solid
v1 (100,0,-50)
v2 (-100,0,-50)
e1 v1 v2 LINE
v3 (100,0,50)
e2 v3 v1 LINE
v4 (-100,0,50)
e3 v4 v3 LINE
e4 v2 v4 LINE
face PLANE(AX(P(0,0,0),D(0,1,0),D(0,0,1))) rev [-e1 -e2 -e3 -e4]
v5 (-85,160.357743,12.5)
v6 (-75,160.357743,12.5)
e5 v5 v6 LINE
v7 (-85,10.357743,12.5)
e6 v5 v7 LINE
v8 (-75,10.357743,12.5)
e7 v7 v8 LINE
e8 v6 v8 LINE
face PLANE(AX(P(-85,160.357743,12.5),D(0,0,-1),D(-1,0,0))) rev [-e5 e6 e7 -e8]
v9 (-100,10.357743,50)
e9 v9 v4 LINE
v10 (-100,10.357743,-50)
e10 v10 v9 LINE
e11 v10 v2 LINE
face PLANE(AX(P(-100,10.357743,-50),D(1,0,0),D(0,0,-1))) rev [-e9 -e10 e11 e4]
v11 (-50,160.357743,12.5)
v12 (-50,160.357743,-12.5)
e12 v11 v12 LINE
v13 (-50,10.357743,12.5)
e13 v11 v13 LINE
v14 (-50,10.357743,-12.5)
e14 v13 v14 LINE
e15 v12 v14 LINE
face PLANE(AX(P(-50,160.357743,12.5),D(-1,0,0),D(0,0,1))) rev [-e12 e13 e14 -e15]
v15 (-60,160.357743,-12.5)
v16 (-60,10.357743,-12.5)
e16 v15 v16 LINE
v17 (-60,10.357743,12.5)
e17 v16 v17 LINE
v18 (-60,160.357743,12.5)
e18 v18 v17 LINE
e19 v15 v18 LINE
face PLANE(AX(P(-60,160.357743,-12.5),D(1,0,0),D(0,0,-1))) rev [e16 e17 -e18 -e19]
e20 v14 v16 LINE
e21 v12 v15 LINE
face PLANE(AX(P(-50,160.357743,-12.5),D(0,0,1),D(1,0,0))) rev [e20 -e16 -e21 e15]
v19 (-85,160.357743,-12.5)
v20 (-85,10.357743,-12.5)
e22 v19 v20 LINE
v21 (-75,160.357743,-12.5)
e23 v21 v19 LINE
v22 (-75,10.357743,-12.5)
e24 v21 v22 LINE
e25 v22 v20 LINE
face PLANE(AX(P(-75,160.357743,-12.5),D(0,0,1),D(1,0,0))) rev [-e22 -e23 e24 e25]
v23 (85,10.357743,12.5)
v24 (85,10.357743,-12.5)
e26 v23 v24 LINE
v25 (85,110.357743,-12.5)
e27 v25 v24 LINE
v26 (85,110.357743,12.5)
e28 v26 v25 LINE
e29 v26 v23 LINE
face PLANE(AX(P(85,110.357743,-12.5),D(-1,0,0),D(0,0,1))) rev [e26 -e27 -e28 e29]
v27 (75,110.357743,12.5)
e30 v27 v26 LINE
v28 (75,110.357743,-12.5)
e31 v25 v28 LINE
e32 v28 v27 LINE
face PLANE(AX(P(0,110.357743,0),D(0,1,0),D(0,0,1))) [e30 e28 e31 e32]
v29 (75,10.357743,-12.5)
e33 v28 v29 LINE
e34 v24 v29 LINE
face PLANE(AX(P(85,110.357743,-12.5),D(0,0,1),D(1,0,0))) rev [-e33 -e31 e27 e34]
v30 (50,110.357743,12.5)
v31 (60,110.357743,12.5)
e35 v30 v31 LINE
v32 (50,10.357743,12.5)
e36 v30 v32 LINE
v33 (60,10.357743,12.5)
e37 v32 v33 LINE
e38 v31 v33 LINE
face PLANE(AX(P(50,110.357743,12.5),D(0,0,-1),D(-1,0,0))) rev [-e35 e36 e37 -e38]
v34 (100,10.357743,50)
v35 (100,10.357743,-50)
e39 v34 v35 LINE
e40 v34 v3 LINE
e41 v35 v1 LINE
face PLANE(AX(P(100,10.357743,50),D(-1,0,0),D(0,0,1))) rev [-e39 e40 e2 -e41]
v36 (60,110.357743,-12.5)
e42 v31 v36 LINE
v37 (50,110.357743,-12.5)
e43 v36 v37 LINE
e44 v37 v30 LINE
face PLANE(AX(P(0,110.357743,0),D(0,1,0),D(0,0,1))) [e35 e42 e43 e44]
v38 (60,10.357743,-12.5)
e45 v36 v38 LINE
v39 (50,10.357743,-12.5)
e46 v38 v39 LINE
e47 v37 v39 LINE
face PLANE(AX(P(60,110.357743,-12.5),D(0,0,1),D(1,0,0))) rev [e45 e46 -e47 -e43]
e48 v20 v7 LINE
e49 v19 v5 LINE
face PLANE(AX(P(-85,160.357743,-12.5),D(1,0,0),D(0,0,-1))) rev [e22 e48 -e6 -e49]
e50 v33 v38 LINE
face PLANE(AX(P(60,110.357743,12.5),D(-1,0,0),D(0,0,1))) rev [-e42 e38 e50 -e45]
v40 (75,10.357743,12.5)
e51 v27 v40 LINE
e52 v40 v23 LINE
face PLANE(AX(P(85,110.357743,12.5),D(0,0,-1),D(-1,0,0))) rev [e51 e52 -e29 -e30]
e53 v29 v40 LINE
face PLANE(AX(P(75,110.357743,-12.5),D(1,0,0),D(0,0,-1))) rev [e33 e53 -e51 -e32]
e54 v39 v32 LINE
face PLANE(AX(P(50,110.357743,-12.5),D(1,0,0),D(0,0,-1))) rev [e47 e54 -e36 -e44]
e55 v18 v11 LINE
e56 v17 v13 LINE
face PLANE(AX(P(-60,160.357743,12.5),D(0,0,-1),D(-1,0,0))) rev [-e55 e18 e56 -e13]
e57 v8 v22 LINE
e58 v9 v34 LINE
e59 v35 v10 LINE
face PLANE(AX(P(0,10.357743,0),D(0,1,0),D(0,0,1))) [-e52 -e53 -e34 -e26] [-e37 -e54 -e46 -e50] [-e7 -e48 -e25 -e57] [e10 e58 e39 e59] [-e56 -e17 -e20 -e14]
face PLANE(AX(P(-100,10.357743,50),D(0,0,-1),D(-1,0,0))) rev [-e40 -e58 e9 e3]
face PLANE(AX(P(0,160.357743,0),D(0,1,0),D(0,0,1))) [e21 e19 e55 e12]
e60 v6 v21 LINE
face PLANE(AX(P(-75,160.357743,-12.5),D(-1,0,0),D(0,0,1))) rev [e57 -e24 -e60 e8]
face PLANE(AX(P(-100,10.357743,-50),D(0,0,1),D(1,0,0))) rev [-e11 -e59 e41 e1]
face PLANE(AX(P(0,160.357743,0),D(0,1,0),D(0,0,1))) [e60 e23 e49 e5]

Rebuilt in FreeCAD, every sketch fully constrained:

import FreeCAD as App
import Part
import Sketcher
Q = App.Units.Quantity


def add_polygon(sketch, points):
    """Adds a closed chain of lines whose ends are joined by coincident constraints."""
    first, n = sketch.GeometryCount, len(points)
    for a, b in zip(points, points[1:] + points[:1]):
        sketch.addGeometry(Part.LineSegment(App.Vector(*a, 0), App.Vector(*b, 0)), False)
    for i in range(n):
        sketch.addConstraint(Sketcher.Constraint("Coincident", first + i, 2, first + (i + 1) % n, 1))

doc = App.newDocument("Part")
params = doc.addObject("Spreadsheet::Sheet", "Params")
for row, (alias, value) in enumerate([
    ("sketch1_width", "200 mm"),
    ("sketch1_height", "100 mm"),
    ("pad1_length", "10.357743 mm"),
    ("sketch2_width", "10 mm"),
    ("sketch2_height", "25 mm"),
    ("pad2_length", "150 mm"),
    ("sketch3_width", "10 mm"),
    ("sketch3_height", "25 mm"),
    ("pad3_length", "100 mm"),
], start=1):
    params.set(f"A{row}", alias)
    params.set(f"B{row}", "=" + value)
    params.setAlias(f"B{row}", alias)

body = doc.addObject("PartDesign::Body", "Body")

sketch1 = body.newObject("Sketcher::SketchObject", "Sketch")
sketch1.AttachmentSupport = (doc.getObject("XZ_Plane"), [""])
sketch1.MapMode = "FlatFace"
add_polygon(sketch1, [(-100, -50), (-100, 50), (100, 50), (100, -50)])
sketch1.addConstraint([
    Sketcher.Constraint("Vertical", 0),
    Sketcher.Constraint("Horizontal", 1),
    Sketcher.Constraint("Vertical", 2),
    Sketcher.Constraint("Horizontal", 3),
    Sketcher.Constraint("Symmetric", 0, 2, 2, 2, -1, 1),
    Sketcher.Constraint("DistanceX", 1, 1, 1, 2, Q("200 mm")),
    Sketcher.Constraint("DistanceY", 0, 1, 0, 2, Q("100 mm")),
])
sketch1.setExpression("Constraints[9]", "Params.sketch1_width")
sketch1.setExpression("Constraints[10]", "Params.sketch1_height")
pad1 = body.newObject("PartDesign::Pad", "Pad")
pad1.Profile = sketch1
pad1.setExpression("Length", "Params.pad1_length")
pad1.Reversed = True

sketch2 = body.newObject("Sketcher::SketchObject", "Sketch001")
sketch2.AttachmentSupport = (doc.getObject("XZ_Plane"), [""])
sketch2.MapMode = "FlatFace"
sketch2.AttachmentOffset = App.Placement(App.Vector(0, 0, -10.357743), App.Rotation())
add_polygon(sketch2, [(-85, -12), (-85, 12), (-75, 12), (-75, -12)])
add_polygon(sketch2, [(-60, -12), (-60, 12), (-50, 12), (-50, -12)])
sketch2.addConstraint([
    Sketcher.Constraint("Vertical", 0),
    Sketcher.Constraint("Horizontal", 1),
    Sketcher.Constraint("Vertical", 2),
    Sketcher.Constraint("Horizontal", 3),
    Sketcher.Constraint("Vertical", 4),
    Sketcher.Constraint("Horizontal", 5),
    Sketcher.Constraint("Vertical", 6),
    Sketcher.Constraint("Horizontal", 7),
    Sketcher.Constraint("Horizontal", 1, 2, 4, 2),
    Sketcher.Constraint("Horizontal", 3, 2, 6, 2),
    Sketcher.Constraint("Equal", 3, 5),
    Sketcher.Constraint("DistanceX", 1, 1, 1, 2, Q("10 mm")),
    Sketcher.Constraint("DistanceY", 0, 1, 0, 2, Q("25 mm")),
    Sketcher.Constraint("DistanceX", 0, 2, -1, 1, Q("85 mm")),
    Sketcher.Constraint("DistanceX", 4, 2, -1, 1, Q("60 mm")),
    Sketcher.Constraint("DistanceY", -1, 1, 0, 2, Q("12.5 mm")),
])
sketch2.setExpression("Constraints[19]", "Params.sketch2_width")
sketch2.setExpression("Constraints[20]", "Params.sketch2_height")
pad2 = body.newObject("PartDesign::Pad", "Pad001")
pad2.Profile = sketch2
pad2.setExpression("Length", "Params.pad2_length")
pad2.Reversed = True

sketch3 = body.newObject("Sketcher::SketchObject", "Sketch002")
sketch3.AttachmentSupport = (doc.getObject("XZ_Plane"), [""])
sketch3.MapMode = "FlatFace"
sketch3.AttachmentOffset = App.Placement(App.Vector(0, 0, -10.357743), App.Rotation())
add_polygon(sketch3, [(75, -12), (75, 12), (85, 12), (85, -12)])
add_polygon(sketch3, [(50, -12), (50, 12), (60, 12), (60, -12)])
sketch3.addConstraint([
    Sketcher.Constraint("Vertical", 0),
    Sketcher.Constraint("Horizontal", 1),
    Sketcher.Constraint("Vertical", 2),
    Sketcher.Constraint("Horizontal", 3),
    Sketcher.Constraint("Vertical", 4),
    Sketcher.Constraint("Horizontal", 5),
    Sketcher.Constraint("Vertical", 6),
    Sketcher.Constraint("Horizontal", 7),
    Sketcher.Constraint("Horizontal", 1, 2, 4, 2),
    Sketcher.Constraint("Horizontal", 3, 2, 6, 2),
    Sketcher.Constraint("Equal", 3, 5),
    Sketcher.Constraint("DistanceX", 1, 1, 1, 2, Q("10 mm")),
    Sketcher.Constraint("DistanceY", 0, 1, 0, 2, Q("25 mm")),
    Sketcher.Constraint("DistanceX", -1, 1, 0, 2, Q("75 mm")),
    Sketcher.Constraint("DistanceX", -1, 1, 4, 2, Q("50 mm")),
    Sketcher.Constraint("DistanceY", -1, 1, 0, 2, Q("12.5 mm")),
])
sketch3.setExpression("Constraints[19]", "Params.sketch3_width")
sketch3.setExpression("Constraints[20]", "Params.sketch3_height")
pad3 = body.newObject("PartDesign::Pad", "Pad002")
pad3.Profile = sketch3
pad3.setExpression("Length", "Params.pad3_length")
pad3.Reversed = True

doc.recompute()
